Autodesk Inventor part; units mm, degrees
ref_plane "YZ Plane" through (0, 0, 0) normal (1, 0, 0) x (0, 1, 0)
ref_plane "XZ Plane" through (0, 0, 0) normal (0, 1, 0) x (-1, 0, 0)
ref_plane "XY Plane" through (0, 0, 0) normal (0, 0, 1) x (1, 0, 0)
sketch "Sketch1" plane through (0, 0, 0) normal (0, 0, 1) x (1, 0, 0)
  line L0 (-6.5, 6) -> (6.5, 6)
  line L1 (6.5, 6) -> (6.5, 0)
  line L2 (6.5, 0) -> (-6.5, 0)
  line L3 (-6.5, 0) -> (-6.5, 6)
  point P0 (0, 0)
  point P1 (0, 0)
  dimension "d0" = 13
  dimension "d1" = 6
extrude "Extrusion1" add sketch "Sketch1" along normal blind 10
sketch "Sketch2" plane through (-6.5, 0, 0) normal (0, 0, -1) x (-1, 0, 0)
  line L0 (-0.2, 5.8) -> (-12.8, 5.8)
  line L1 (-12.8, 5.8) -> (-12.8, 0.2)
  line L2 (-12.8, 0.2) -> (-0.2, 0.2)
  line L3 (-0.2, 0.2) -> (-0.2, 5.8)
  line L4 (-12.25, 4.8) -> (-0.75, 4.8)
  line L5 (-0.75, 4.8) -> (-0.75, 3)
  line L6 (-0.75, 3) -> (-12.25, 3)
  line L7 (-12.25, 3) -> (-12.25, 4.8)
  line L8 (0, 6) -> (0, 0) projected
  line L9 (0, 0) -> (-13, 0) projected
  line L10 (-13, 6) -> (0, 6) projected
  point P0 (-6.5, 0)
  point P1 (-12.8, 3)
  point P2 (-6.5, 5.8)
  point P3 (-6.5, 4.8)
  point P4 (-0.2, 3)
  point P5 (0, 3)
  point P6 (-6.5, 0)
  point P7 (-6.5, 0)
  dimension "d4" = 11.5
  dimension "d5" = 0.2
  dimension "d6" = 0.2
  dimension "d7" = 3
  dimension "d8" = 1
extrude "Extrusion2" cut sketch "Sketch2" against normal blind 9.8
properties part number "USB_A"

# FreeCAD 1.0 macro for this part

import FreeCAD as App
import Part
import Sketcher
from FreeCAD import Vector
Q = App.Units.Quantity


def add_polygon(sketch, points):
    """Adds a closed chain of lines whose ends are joined by coincident constraints."""
    first, n = sketch.GeometryCount, len(points)
    for a, b in zip(points, points[1:] + points[:1]):
        sketch.addGeometry(Part.LineSegment(App.Vector(*a, 0), App.Vector(*b, 0)), False)
    for i in range(n):
        sketch.addConstraint(Sketcher.Constraint("Coincident", first + i, 2, first + (i + 1) % n, 1))

doc = App.newDocument("Part")
params = doc.addObject("Spreadsheet::Sheet", "Params")
for row, (alias, value) in enumerate([
    ("sketch1_width", "13 mm"),
    ("sketch1_height", "6 mm"),
    ("pad1_length", "10 mm"),
    ("sketch2_width", "11.5 mm"),
    ("sketch2_width2", "12.6 mm"),
    ("sketch2_height", "5.6 mm"),
    ("pocket1_length", "9.8 mm"),
], start=1):
    params.set(f"A{row}", alias)
    params.set(f"B{row}", "=" + value)
    params.setAlias(f"B{row}", alias)

body = doc.addObject("PartDesign::Body", "Body")

# Sketch on XY plane
sketch1 = body.newObject("Sketcher::SketchObject", "Sketch")
sketch1.AttachmentSupport = (doc.getObject("XY_Plane"), [""])
sketch1.MapMode = "FlatFace"
add_polygon(sketch1, [(6, 6), (-6, 6), (-6, 0), (6, 0)])  # lines 0-3
sketch1.addConstraint([
    Sketcher.Constraint("Horizontal", 0),
    Sketcher.Constraint("Vertical", 1),
    Sketcher.Constraint("Horizontal", 2),
    Sketcher.Constraint("Vertical", 3),
    Sketcher.Constraint("Symmetric", 1, 2, 2, 2, -1, 1),
    Sketcher.Constraint("DistanceX", 0, 2, 0, 1, Q("13 mm")),
    Sketcher.Constraint("DistanceY", 1, 2, 1, 1, Q("6 mm")),
])
sketch1.setExpression("Constraints[9]", "Params.sketch1_width")
sketch1.setExpression("Constraints[10]", "Params.sketch1_height")
pad1 = body.newObject("PartDesign::Pad", "Pad")
pad1.Profile = sketch1
pad1.setExpression("Length", "Params.pad1_length")

# Sketch on XY plane
sketch2 = body.newObject("Sketcher::SketchObject", "Sketch001")
sketch2.AttachmentSupport = (doc.getObject("XY_Plane"), [""])
sketch2.MapMode = "FlatFace"
add_polygon(sketch2, [(-6.3, 0.2), (-6.3, 5.8), (6.3, 5.8), (6.3, 0.2)])  # lines 0-3
add_polygon(sketch2, [(5.8, 3), (5.8, 4.8), (-5.8, 4.8), (-5.8, 3)])  # lines 4-7
sketch2.addConstraint([
    Sketcher.Constraint("Vertical", 0),
    Sketcher.Constraint("Horizontal", 1),
    Sketcher.Constraint("Vertical", 2),
    Sketcher.Constraint("Horizontal", 3),
    Sketcher.Constraint("Vertical", 4),
    Sketcher.Constraint("Horizontal", 5),
    Sketcher.Constraint("Vertical", 6),
    Sketcher.Constraint("Horizontal", 7),
    Sketcher.Constraint("DistanceX", 5, 2, 5, 1, Q("11.5 mm")),
    Sketcher.Constraint("DistanceY", -1, 1, 6, 2, Q("3 mm")),
    Sketcher.Constraint("DistanceY", 4, 2, 1, 2, Q("1 mm")),
    Sketcher.Constraint("DistanceY", -1, 1, 2, 2, Q("0.2 mm")),
    Sketcher.Constraint("DistanceX", 1, 1, 1, 2, Q("12.6 mm")),
    Sketcher.Constraint("DistanceY", 0, 1, 0, 2, Q("5.6 mm")),
    Sketcher.Constraint("DistanceX", 0, 2, -1, 1, Q("6.3 mm")),
    Sketcher.Constraint("DistanceX", -1, 1, 4, 2, Q("5.75 mm")),
])
sketch2.setExpression("Constraints[16]", "Params.sketch2_width")
sketch2.setExpression("Constraints[20]", "Params.sketch2_width2")
sketch2.setExpression("Constraints[21]", "Params.sketch2_height")
pocket1 = body.newObject("PartDesign::Pocket", "Pocket")
pocket1.Profile = sketch2
pocket1.setExpression("Length", "Params.pocket1_length")
pocket1.Reversed = True

doc.recompute()
